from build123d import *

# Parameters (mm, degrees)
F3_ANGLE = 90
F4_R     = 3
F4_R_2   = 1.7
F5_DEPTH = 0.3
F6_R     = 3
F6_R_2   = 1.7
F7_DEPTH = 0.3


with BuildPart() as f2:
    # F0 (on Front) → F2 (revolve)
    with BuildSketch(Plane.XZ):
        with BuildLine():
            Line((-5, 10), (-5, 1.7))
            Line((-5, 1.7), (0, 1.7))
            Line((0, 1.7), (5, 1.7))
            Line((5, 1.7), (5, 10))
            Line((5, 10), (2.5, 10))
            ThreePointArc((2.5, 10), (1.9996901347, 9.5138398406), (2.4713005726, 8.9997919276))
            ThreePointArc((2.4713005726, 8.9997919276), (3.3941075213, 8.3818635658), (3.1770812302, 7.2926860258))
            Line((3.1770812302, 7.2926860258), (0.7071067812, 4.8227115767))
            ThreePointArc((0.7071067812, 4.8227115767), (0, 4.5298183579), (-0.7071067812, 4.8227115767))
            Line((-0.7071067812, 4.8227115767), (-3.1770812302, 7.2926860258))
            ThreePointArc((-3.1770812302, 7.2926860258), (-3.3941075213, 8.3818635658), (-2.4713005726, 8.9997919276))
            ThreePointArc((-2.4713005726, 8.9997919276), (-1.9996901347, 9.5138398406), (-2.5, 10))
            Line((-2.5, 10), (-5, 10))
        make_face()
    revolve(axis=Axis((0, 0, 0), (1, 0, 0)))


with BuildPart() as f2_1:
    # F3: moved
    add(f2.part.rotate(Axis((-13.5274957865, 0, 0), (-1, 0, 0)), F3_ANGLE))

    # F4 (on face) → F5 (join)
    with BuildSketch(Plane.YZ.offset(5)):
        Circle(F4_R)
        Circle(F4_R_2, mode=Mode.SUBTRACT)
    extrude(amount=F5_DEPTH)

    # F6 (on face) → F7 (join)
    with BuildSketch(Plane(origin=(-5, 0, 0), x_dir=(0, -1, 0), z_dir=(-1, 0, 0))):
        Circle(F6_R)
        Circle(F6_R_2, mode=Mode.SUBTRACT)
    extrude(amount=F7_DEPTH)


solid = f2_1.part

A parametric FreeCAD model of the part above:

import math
import FreeCAD as App
import Part
import Sketcher
Q = App.Units.Quantity

doc = App.newDocument("Part")
body = doc.addObject("PartDesign::Body", "Body")

sketch1 = body.newObject("Sketcher::SketchObject", "Sketch")
sketch1.AttachmentSupport = (doc.getObject("XZ_Plane"), [""])
sketch1.MapMode = "FlatFace"
sketch1.addGeometry([
    Part.LineSegment(App.Vector(-5, 10, 0), App.Vector(-5, 1.7, 0)),
    Part.LineSegment(App.Vector(-5, 1.7, 0), App.Vector(5, 1.7, 0)),
    Part.LineSegment(App.Vector(5, 1.7, 0), App.Vector(5, 10, 0)),
    Part.LineSegment(App.Vector(5, 10, 0), App.Vector(2.5, 10, 0)),
    Part.ArcOfCircle(Part.Circle(App.Vector(2.5, 9.5, 0), App.Vector(0, 0, 1), 0.5), math.radians(90), math.radians(267)),
    Part.ArcOfCircle(Part.Circle(App.Vector(2.5, 8, 0), App.Vector(0, 0, 1), 1), math.radians(-45), math.radians(90)),
    Part.LineSegment(App.Vector(3.2, 7.3, 0), App.Vector(0.7, 4.8, 0)),
    Part.ArcOfCircle(Part.Circle(App.Vector(0, 5.5, 0), App.Vector(0, 0, 1), 1), math.radians(-135), math.radians(-45)),
    Part.LineSegment(App.Vector(-0.7, 4.8, 0), App.Vector(-3.2, 7.3, 0)),
    Part.ArcOfCircle(Part.Circle(App.Vector(-2.5, 8, 0), App.Vector(0, 0, 1), 1), math.radians(90), math.radians(225)),
    Part.ArcOfCircle(Part.Circle(App.Vector(-2.5, 9.5, 0), App.Vector(0, 0, 1), 0.5), math.radians(-87), math.radians(90)),
    Part.LineSegment(App.Vector(-2.5, 10, 0), App.Vector(-5, 10, 0)),
], False)
sketch1.addConstraint([
    Sketcher.Constraint("Coincident", 0, 2, 1, 1),
    Sketcher.Constraint("Coincident", 1, 2, 2, 1),
    Sketcher.Constraint("Coincident", 2, 2, 3, 1),
    Sketcher.Constraint("Tangent", 3, 2, 4, 1),
    Sketcher.Constraint("Coincident", 4, 2, 5, 2),
    Sketcher.Constraint("Tangent", 5, 1, 6, 1),
    Sketcher.Constraint("Tangent", 6, 2, 7, 2),
    Sketcher.Constraint("Tangent", 7, 1, 8, 1),
    Sketcher.Constraint("Tangent", 8, 2, 9, 2),
    Sketcher.Constraint("Coincident", 9, 1, 10, 1),
    Sketcher.Constraint("Tangent", 10, 2, 11, 1),
    Sketcher.Constraint("Coincident", 11, 2, 0, 1),
    Sketcher.Constraint("Vertical", 0),
    Sketcher.Constraint("Horizontal", 1),
    Sketcher.Constraint("Vertical", 2),
    Sketcher.Constraint("Horizontal", 3),
    Sketcher.Constraint("Horizontal", 11),
    Sketcher.Constraint("Equal", 5, 7),
    Sketcher.Constraint("Equal", 7, 9),
    Sketcher.Constraint("Equal", 4, 10),
    Sketcher.Constraint("Symmetric", 5, 3, 9, 3, -2),
    Sketcher.Constraint("Symmetric", 4, 3, 10, 3, -2),
    Sketcher.Constraint("PointOnObject", 7, 3, -2),
    Sketcher.Constraint("Perpendicular", 6, 8),
    Sketcher.Constraint("Equal", 3, 11),
    Sketcher.Constraint("Radius", 5, Q("1 mm")),
    Sketcher.Constraint("DistanceX", 1, 1, 1, 2, Q("10 mm")),
    Sketcher.Constraint("DistanceX", 3, 2, 3, 1, Q("2.5 mm")),
    Sketcher.Constraint("DistanceY", 0, 2, 0, 1, Q("8.3 mm")),
    Sketcher.Constraint("DistanceY", -1, 1, 2, 2, Q("10 mm")),
    Sketcher.Constraint("Radius", 4, Q("0.500516 mm")),
    Sketcher.Constraint("DistanceX", -1, 1, 4, 2, Q("2.471301 mm")),
    Sketcher.Constraint("Distance", 6, Q("3.493071 mm")),
])
revolution = body.newObject("PartDesign::Revolution", "Revolution")
revolution.Profile = sketch1
revolution.ReferenceAxis = (sketch1, ["H_Axis"])
revolution.Angle = 360
body2 = doc.addObject("PartDesign::Body", "Body001")
doc.recompute()

body.Placement = App.Placement(App.Vector(0, 0, 0), App.Rotation(App.Vector(-1, 0, 0), 90))
boolean = body2.newObject("PartDesign::Boolean", "Boolean")
boolean.Type = "Fuse"
boolean.addObjects([body])

sketch2 = body2.newObject("Sketcher::SketchObject", "Sketch001")
sketch2.AttachmentSupport = (doc.getObject("YZ_Plane001"), [""])
sketch2.MapMode = "FlatFace"
sketch2.AttachmentOffset = App.Placement(App.Vector(0, 0, 5), App.Rotation())
sketch2.addGeometry([
    Part.Circle(App.Vector(0, 0, 0), App.Vector(0, 0, 1), 3),
    Part.Circle(App.Vector(0, 0, 0), App.Vector(0, 0, 1), 1.7),
], False)
sketch2.addConstraint([
    Sketcher.Constraint("Coincident", 0, 3, -1, 1),
    Sketcher.Constraint("Coincident", 1, 3, -1, 1),
    Sketcher.Constraint("Diameter", 0, Q("6 mm")),
    Sketcher.Constraint("Diameter", 1, Q("3.4 mm")),
])
pad1 = body2.newObject("PartDesign::Pad", "Pad")
pad1.Profile = sketch2
pad1.Length = 0.3

sketch3 = body2.newObject("Sketcher::SketchObject", "Sketch002")
sketch3.AttachmentSupport = (doc.getObject("YZ_Plane001"), [""])
sketch3.MapMode = "FlatFace"
sketch3.AttachmentOffset = App.Placement(App.Vector(0, 0, -5), App.Rotation())
sketch3.addGeometry([
    Part.Circle(App.Vector(0, 0, 0), App.Vector(0, 0, 1), 3),
    Part.Circle(App.Vector(0, 0, 0), App.Vector(0, 0, 1), 1.7),
], False)
sketch3.addConstraint([
    Sketcher.Constraint("Coincident", 0, 3, -1, 1),
    Sketcher.Constraint("Coincident", 1, 3, -1, 1),
    Sketcher.Constraint("Diameter", 0, Q("6 mm")),
    Sketcher.Constraint("Diameter", 1, Q("3.4 mm")),
])
pad2 = body2.newObject("PartDesign::Pad", "Pad001")
pad2.Profile = sketch3
pad2.Length = 0.3
pad2.Reversed = True

doc.recompute()
